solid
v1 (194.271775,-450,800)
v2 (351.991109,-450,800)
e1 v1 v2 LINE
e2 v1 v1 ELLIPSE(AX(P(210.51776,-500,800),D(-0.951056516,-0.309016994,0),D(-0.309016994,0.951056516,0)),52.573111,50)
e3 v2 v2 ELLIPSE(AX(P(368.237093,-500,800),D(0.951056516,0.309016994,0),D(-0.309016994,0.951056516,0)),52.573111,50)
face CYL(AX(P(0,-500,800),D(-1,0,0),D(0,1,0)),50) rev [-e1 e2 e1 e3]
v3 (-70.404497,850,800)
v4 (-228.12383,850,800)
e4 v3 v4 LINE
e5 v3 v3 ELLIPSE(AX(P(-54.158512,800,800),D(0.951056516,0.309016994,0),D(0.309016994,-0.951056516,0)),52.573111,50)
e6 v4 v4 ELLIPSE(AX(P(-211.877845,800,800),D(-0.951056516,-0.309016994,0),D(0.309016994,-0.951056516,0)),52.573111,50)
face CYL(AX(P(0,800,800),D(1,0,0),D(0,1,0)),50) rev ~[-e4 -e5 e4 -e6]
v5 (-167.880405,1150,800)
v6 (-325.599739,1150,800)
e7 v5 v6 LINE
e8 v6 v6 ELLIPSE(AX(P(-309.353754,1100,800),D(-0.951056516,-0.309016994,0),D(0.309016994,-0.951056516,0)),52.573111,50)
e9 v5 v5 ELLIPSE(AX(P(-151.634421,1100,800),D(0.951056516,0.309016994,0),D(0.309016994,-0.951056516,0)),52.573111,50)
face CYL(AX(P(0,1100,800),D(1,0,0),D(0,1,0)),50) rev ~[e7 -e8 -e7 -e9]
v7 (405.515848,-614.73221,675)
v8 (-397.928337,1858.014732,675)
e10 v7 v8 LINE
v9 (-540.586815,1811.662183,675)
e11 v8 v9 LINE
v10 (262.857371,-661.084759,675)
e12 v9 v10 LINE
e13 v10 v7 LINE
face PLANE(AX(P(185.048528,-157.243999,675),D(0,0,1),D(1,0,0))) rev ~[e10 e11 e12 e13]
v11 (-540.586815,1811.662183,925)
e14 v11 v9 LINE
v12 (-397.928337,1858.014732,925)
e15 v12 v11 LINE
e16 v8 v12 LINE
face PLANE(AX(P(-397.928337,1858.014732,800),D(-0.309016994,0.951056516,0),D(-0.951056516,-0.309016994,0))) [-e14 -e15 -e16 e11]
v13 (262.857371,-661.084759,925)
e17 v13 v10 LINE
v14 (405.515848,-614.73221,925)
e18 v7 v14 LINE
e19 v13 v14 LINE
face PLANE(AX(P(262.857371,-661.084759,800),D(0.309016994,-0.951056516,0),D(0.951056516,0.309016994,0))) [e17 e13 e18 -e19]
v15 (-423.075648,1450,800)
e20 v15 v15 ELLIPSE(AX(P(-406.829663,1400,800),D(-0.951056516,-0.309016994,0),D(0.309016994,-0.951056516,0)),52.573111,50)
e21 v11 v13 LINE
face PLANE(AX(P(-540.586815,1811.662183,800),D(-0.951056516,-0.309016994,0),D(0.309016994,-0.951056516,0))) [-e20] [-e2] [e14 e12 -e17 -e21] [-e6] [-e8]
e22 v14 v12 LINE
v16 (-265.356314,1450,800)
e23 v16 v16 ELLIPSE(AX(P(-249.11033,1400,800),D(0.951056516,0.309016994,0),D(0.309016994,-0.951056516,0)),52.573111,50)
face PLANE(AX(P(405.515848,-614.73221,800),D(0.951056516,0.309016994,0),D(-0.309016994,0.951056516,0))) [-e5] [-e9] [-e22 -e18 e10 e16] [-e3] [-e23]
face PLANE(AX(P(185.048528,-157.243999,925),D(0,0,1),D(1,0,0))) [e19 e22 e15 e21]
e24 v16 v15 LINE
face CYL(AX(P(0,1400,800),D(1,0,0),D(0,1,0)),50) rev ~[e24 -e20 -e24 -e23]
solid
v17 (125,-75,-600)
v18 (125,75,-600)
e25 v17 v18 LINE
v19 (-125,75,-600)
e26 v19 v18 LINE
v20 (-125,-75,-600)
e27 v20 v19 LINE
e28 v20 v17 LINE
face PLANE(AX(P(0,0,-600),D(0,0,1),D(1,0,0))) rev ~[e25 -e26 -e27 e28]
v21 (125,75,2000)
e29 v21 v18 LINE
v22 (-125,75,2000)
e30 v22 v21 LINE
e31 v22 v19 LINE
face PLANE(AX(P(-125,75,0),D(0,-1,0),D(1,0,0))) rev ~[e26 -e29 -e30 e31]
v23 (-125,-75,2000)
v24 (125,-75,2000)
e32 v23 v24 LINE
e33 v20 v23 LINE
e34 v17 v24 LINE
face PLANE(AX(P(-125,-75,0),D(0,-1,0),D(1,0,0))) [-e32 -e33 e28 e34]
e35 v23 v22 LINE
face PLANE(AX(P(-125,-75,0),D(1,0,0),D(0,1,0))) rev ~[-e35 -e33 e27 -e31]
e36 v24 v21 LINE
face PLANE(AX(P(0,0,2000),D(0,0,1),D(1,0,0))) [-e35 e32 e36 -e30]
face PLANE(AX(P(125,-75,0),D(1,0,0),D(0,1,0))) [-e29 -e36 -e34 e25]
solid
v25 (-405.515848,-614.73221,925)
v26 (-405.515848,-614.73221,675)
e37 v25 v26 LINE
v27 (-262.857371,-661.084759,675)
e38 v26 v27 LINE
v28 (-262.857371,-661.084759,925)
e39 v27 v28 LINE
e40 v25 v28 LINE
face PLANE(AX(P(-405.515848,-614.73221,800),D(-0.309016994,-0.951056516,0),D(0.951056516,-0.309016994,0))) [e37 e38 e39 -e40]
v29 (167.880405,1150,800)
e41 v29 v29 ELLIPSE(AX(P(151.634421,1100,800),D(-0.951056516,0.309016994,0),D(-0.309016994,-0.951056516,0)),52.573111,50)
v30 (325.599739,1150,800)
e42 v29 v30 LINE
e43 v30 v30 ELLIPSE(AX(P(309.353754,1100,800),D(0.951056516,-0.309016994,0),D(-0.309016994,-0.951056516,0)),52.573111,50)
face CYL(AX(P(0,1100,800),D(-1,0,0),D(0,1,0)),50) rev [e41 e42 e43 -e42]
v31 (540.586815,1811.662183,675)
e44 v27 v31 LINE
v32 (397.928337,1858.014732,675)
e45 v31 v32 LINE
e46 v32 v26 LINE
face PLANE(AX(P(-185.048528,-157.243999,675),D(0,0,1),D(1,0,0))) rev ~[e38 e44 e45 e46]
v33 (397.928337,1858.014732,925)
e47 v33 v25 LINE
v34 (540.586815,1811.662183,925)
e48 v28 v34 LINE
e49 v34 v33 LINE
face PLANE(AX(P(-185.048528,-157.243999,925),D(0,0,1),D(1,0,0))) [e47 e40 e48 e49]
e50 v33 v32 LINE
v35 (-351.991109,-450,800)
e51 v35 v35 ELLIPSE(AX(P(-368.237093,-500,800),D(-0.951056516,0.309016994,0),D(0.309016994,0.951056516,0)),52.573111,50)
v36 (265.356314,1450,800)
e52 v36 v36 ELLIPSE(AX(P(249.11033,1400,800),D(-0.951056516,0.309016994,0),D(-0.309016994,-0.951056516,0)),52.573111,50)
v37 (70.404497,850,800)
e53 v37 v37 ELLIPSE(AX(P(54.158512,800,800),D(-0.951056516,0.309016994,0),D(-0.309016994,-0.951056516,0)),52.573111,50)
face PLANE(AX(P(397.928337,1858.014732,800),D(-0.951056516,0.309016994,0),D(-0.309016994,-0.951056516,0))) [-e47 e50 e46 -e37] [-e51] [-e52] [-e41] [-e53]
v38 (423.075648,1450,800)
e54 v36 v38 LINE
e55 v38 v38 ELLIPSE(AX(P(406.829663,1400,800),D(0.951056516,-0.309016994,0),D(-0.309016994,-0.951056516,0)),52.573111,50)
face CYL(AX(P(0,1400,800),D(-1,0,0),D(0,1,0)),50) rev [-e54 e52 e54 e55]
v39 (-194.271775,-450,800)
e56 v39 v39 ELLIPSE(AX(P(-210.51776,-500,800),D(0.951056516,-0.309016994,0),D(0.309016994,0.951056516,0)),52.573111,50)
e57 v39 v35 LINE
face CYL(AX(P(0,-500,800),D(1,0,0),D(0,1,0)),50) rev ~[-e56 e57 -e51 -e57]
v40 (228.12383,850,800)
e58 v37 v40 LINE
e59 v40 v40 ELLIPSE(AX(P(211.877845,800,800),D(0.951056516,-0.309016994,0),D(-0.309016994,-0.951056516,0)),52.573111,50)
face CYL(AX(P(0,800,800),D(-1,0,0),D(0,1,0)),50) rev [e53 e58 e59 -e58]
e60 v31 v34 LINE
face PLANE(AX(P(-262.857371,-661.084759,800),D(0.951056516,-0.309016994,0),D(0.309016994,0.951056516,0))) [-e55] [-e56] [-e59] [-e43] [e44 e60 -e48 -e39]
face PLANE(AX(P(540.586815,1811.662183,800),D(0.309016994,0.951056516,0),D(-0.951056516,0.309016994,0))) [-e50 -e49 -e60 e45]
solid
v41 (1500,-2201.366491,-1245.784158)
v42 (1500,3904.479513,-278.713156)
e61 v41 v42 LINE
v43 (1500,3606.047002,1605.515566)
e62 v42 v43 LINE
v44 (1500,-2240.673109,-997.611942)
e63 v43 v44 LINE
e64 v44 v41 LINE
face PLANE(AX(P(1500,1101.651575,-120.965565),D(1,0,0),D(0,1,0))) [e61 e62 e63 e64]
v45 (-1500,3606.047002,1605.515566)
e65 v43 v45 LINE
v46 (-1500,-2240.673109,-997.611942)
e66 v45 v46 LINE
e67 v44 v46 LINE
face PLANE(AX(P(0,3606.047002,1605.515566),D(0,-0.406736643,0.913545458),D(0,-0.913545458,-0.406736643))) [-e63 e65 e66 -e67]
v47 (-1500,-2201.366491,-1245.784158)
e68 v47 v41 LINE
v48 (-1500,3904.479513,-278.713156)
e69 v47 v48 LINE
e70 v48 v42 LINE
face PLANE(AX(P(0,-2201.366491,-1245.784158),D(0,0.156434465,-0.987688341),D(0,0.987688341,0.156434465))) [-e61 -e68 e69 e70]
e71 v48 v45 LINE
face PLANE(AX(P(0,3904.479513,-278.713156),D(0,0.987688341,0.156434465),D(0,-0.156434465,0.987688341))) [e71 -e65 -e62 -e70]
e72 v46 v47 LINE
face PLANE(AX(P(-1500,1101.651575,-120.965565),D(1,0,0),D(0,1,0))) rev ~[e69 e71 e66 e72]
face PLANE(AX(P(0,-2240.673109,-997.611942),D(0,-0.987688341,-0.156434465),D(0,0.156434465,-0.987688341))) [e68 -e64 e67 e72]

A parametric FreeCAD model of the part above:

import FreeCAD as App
import Part
import Sketcher
from FreeCAD import Vector
Q = App.Units.Quantity

doc = App.newDocument("Part")
body = doc.addObject("PartDesign::Body", "Body")

sketch1 = body.newObject("Sketcher::SketchObject", "Sketch")
sketch1.AttachmentSupport = (doc.getObject("XY_Plane"), [""])
sketch1.MapMode = "FlatFace"
sketch1.addGeometry([
    Part.LineSegment(Vector(-125, 75, 0), Vector(-125, -75, 0)),
    Part.LineSegment(Vector(-125, -75, 0), Vector(125, -75, 0)),
    Part.LineSegment(Vector(125, -75, 0), Vector(125, 75, 0)),
    Part.LineSegment(Vector(125, 75, 0), Vector(-125, 75, 0)),
], False)
sketch1.addConstraint([
    Sketcher.Constraint("Coincident", 0, 2, 1, 1),
    Sketcher.Constraint("Coincident", 1, 2, 2, 1),
    Sketcher.Constraint("Coincident", 2, 2, 3, 1),
    Sketcher.Constraint("Coincident", 3, 2, 0, 1),
    Sketcher.Constraint("Vertical", 0),
    Sketcher.Constraint("Horizontal", 1),
    Sketcher.Constraint("Vertical", 2),
    Sketcher.Constraint("Horizontal", 3),
    Sketcher.Constraint("Symmetric", 0, 2, 2, 2, -1, 1),
    Sketcher.Constraint("DistanceX", 1, 1, 1, 2, 250.0),
    Sketcher.Constraint("DistanceY", 0, 2, 0, 1, 150.0),
])
pad1 = body.newObject("PartDesign::Pad", "Pad")
pad1.Profile = sketch1
pad1.Type = "TwoLengths"
pad1.Length = 2000
pad1.Length2 = 600
body2 = doc.addObject("PartDesign::Body", "Body001")

sketch2 = body2.newObject("Sketcher::SketchObject", "Sketch001")
sketch2.AttachmentSupport = (doc.getObject("XY_Plane001"), [""])
sketch2.MapMode = "FlatFace"
sketch2.AttachmentOffset = App.Placement(Vector(0, 0, 800), App.Rotation())
sketch2.addGeometry([
    Part.LineSegment(Vector(-406, -615, 0), Vector(-263, -661, 0)),
    Part.LineSegment(Vector(-263, -661, 0), Vector(541, 1812, 0)),
    Part.LineSegment(Vector(541, 1812, 0), Vector(398, 1858, 0)),
    Part.LineSegment(Vector(398, 1858, 0), Vector(-406, -615, 0)),
], False)
sketch2.addConstraint([
    Sketcher.Constraint("Coincident", 0, 2, 1, 1),
    Sketcher.Constraint("Coincident", 1, 2, 2, 1),
    Sketcher.Constraint("Coincident", 2, 2, 3, 1),
    Sketcher.Constraint("Coincident", 3, 2, 0, 1),
    Sketcher.Constraint("Perpendicular", 0, 1),
    Sketcher.Constraint("Perpendicular", 1, 2),
    Sketcher.Constraint("Perpendicular", 2, 3),
    Sketcher.Constraint("Angle", 0, Q("-18 deg")),
    Sketcher.Constraint("Distance", 0, 150.0),
    Sketcher.Constraint("Distance", 1, 2600.0),
    Sketcher.Constraint("DistanceX", 0, 2, -1, 1, 262.857371),
    Sketcher.Constraint("DistanceY", 0, 2, -1, 1, 661.084759),
])
pad2 = body2.newObject("PartDesign::Pad", "Pad001")
pad2.Profile = sketch2
pad2.Length = 250
pad2.Midplane = True
body3 = doc.addObject("PartDesign::Body", "Body002")

sketch3 = body3.newObject("Sketcher::SketchObject", "Sketch002")
sketch3.AttachmentSupport = (doc.getObject("XY_Plane002"), [""])
sketch3.MapMode = "FlatFace"
sketch3.AttachmentOffset = App.Placement(Vector(0, 0, 800), App.Rotation())
sketch3.addGeometry([
    Part.LineSegment(Vector(263, -661, 0), Vector(406, -615, 0)),
    Part.LineSegment(Vector(406, -615, 0), Vector(-398, 1858, 0)),
    Part.LineSegment(Vector(-398, 1858, 0), Vector(-541, 1812, 0)),
    Part.LineSegment(Vector(-541, 1812, 0), Vector(263, -661, 0)),
], False)
sketch3.addConstraint([
    Sketcher.Constraint("Coincident", 0, 2, 1, 1),
    Sketcher.Constraint("Coincident", 1, 2, 2, 1),
    Sketcher.Constraint("Coincident", 2, 2, 3, 1),
    Sketcher.Constraint("Coincident", 3, 2, 0, 1),
    Sketcher.Constraint("Perpendicular", 0, 1),
    Sketcher.Constraint("Perpendicular", 1, 2),
    Sketcher.Constraint("Perpendicular", 2, 3),
    Sketcher.Constraint("Angle", 0, Q("18 deg")),
    Sketcher.Constraint("Distance", 0, 150.0),
    Sketcher.Constraint("Distance", 1, 2600.0),
    Sketcher.Constraint("DistanceX", -1, 1, 0, 2, 405.515848),
    Sketcher.Constraint("DistanceY", 0, 2, -1, 1, 614.73221),
])
pad3 = body3.newObject("PartDesign::Pad", "Pad002")
pad3.Profile = sketch3
pad3.Length = 250
pad3.Midplane = True
body4 = doc.addObject("PartDesign::Body", "Body003")

sketch4 = body4.newObject("Sketcher::SketchObject", "Sketch003")
sketch4.AttachmentSupport = (doc.getObject("YZ_Plane003"), [""])
sketch4.MapMode = "FlatFace"
sketch4.addGeometry([
    Part.LineSegment(Vector(-2241, -998, 0), Vector(-2201, -1246, 0)),
    Part.LineSegment(Vector(-2201, -1246, 0), Vector(3904, -279, 0)),
    Part.LineSegment(Vector(3904, -279, 0), Vector(3606, 1606, 0)),
    Part.LineSegment(Vector(3606, 1606, 0), Vector(-2241, -998, 0)),
], False)
sketch4.addConstraint([
    Sketcher.Constraint("Coincident", 0, 2, 1, 1),
    Sketcher.Constraint("Coincident", 1, 2, 2, 1),
    Sketcher.Constraint("Coincident", 2, 2, 3, 1),
    Sketcher.Constraint("Coincident", 3, 2, 0, 1),
    Sketcher.Constraint("Perpendicular", 0, 1),
    Sketcher.Constraint("Perpendicular", 1, 2),
    Sketcher.Constraint("Angle", 0, Q("-81 deg")),
    Sketcher.Constraint("Angle", 3, Q("-156 deg")),
    Sketcher.Constraint("DistanceX", -1, 1, 2, 2, 3606.047002),
    Sketcher.Constraint("Distance", 2, 1907.71587),
    Sketcher.Constraint("DistanceX", 0, 2, -1, 1, 2201.366491),
    Sketcher.Constraint("DistanceY", 0, 2, -1, 1, 1245.784158),
])
pad4 = body4.newObject("PartDesign::Pad", "Pad003")
pad4.Profile = sketch4
pad4.Length = 3000
pad4.Midplane = True
body5 = doc.addObject("PartDesign::Body", "Body004")
body5.AllowCompound = True

sketch5 = body5.newObject("Sketcher::SketchObject", "Sketch004")
sketch5.AttachmentSupport = (doc.getObject("YZ_Plane004"), [""])
sketch5.MapMode = "FlatFace"
sketch5.addGeometry([
    Part.Circle(Vector(-500, 800, 0), Vector(0, 0, 1), 50),
    Part.Circle(Vector(800, 800, 0), Vector(0, 0, 1), 50),
    Part.Circle(Vector(1100, 800, 0), Vector(0, 0, 1), 50),
    Part.Circle(Vector(1400, 800, 0), Vector(0, 0, 1), 50),
], False)
sketch5.addConstraint([
    Sketcher.Constraint("Equal", 0, 1),
    Sketcher.Constraint("Equal", 1, 2),
    Sketcher.Constraint("Equal", 2, 3),
    Sketcher.Constraint("Horizontal", 0, 3, 1, 3),
    Sketcher.Constraint("Horizontal", 1, 3, 2, 3),
    Sketcher.Constraint("Horizontal", 2, 3, 3, 3),
    Sketcher.Constraint("Diameter", 0, 100.0),
    Sketcher.Constraint("DistanceX", 0, 3, -1, 1, 500.0),
    Sketcher.Constraint("DistanceY", -1, 1, 0, 3, 800.0),
    Sketcher.Constraint("DistanceX", -1, 1, 1, 3, 800.0),
    Sketcher.Constraint("DistanceX", -1, 1, 2, 3, 1100.0),
    Sketcher.Constraint("DistanceX", -1, 1, 3, 3, 1400.0),
])
pad5 = body5.newObject("PartDesign::Pad", "Pad004")
pad5.Profile = sketch5
pad5.Type = "TwoLengths"
pad5.Length = 1500.001
pad5.Length2 = 1500.001
pad5.Reversed = True
doc.recompute()

body6 = doc.addObject("PartDesign::Body", "Body005")
body6.BaseFeature = body5
boolean = body2.newObject("PartDesign::Boolean", "Boolean")
boolean.Type = "Cut"
boolean.addObjects([body6])
doc.recompute()

boolean2 = body3.newObject("PartDesign::Boolean", "Boolean001")
boolean2.Type = "Cut"
boolean2.addObjects([body5])

doc.recompute()
